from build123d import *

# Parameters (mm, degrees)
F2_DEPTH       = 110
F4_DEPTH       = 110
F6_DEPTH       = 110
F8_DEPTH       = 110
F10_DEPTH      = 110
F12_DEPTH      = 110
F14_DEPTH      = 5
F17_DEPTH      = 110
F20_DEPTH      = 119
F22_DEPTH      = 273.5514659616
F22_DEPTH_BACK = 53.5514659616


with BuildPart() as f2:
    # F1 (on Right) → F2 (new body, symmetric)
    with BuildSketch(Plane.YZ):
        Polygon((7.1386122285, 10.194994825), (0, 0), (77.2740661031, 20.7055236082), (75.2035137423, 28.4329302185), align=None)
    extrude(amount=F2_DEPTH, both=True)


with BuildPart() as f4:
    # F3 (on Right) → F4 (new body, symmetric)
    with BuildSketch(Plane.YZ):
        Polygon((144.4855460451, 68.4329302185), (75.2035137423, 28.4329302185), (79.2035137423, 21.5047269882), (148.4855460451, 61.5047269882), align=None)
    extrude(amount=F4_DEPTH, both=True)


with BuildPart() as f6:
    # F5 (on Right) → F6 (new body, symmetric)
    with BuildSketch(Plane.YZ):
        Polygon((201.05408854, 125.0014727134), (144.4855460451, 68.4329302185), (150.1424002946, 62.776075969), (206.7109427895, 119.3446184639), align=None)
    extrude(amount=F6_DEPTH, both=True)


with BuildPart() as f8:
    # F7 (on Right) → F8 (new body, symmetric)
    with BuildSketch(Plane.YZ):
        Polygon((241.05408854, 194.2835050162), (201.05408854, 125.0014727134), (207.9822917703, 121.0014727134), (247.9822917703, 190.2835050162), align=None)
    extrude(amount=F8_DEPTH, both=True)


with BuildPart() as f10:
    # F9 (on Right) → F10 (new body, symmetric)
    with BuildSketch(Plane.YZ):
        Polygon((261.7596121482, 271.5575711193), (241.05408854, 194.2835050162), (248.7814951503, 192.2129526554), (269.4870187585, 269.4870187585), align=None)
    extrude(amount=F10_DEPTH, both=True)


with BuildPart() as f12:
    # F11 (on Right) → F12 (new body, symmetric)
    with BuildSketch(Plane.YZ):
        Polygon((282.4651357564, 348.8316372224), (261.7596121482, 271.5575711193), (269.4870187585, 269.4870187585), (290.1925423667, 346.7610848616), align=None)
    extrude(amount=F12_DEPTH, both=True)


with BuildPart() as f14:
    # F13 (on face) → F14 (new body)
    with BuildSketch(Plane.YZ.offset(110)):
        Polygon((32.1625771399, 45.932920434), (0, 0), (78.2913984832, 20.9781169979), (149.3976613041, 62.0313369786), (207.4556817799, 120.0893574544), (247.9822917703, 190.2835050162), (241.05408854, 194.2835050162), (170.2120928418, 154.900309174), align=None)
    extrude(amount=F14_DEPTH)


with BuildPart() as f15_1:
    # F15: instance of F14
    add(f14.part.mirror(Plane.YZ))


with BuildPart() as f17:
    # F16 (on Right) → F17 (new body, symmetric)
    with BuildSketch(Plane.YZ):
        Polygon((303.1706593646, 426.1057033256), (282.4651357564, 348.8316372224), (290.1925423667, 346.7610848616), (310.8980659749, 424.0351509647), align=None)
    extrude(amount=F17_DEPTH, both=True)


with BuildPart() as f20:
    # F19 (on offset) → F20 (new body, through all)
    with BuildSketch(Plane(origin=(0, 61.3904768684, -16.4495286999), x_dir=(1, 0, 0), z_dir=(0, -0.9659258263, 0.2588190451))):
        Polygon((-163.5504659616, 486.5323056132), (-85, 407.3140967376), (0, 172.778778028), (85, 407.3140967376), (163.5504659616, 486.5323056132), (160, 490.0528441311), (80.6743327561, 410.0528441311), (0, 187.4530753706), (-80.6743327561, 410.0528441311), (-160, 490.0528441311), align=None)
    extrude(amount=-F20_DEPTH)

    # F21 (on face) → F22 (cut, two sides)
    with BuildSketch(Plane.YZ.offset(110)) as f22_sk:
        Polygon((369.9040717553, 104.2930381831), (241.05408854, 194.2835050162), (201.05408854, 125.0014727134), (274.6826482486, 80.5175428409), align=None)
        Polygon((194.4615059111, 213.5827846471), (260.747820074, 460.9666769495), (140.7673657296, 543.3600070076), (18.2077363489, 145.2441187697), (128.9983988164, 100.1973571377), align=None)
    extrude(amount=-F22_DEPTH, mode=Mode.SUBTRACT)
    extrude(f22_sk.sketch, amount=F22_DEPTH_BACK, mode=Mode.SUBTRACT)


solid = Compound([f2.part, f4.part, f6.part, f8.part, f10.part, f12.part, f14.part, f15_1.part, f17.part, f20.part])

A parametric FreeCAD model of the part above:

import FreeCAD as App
import Part
import Sketcher
from FreeCAD import Vector
Q = App.Units.Quantity

doc = App.newDocument("Part")
params = doc.addObject("Spreadsheet::Sheet", "Params")
for row, (alias, value) in enumerate([
    ("sketch1_length", "80 mm"),
    ("sketch1_length2", "8 mm"),
    ("pad1_length", "220 mm"),
    ("sketch2_length", "80 mm"),
    ("sketch2_length2", "8 mm"),
    ("pad2_length", "220 mm"),
    ("sketch3_length", "80 mm"),
    ("sketch3_length2", "8 mm"),
    ("pad3_length", "220 mm"),
    ("sketch4_length", "80 mm"),
    ("sketch4_length2", "8 mm"),
    ("pad4_length", "220 mm"),
    ("sketch5_length", "80 mm"),
    ("sketch5_length2", "8 mm"),
    ("pad5_length", "220 mm"),
    ("sketch6_length", "80 mm"),
    ("sketch6_length2", "8 mm"),
    ("pad6_length", "220 mm"),
    ("sketch7_length", "8 mm"),
    ("pad7_length", "5 mm"),
    ("sketch8_length", "80 mm"),
    ("sketch8_length2", "8 mm"),
    ("pad8_length", "220 mm"),
    ("sketch9_length", "5 mm"),
    ("pad9_length", "119 mm"),
    ("sketch10_length", "80 mm"),
], start=1):
    params.set(f"A{row}", alias)
    params.set(f"B{row}", "=" + value)
    params.setAlias(f"B{row}", alias)

body = doc.addObject("PartDesign::Body", "Body")

# Sketch on YZ plane
sketch1 = body.newObject("Sketcher::SketchObject", "Sketch")
sketch1.AttachmentSupport = (doc.getObject("YZ_Plane"), [""])
sketch1.MapMode = "FlatFace"
sketch1.addGeometry([
    Part.LineSegment(Vector(7, 10, 0), Vector(0, 0, 0)),
    Part.LineSegment(Vector(0, 0, 0), Vector(77, 21, 0)),
    Part.LineSegment(Vector(77, 21, 0), Vector(75, 28, 0)),
    Part.LineSegment(Vector(75, 28, 0), Vector(7, 10, 0)),
], False)
sketch1.addConstraint([
    Sketcher.Constraint("Coincident", 0, 2, 1, 1),
    Sketcher.Constraint("Coincident", 1, 2, 2, 1),
    Sketcher.Constraint("Coincident", 2, 2, 3, 1),
    Sketcher.Constraint("Coincident", 3, 2, 0, 1),
    Sketcher.Constraint("Coincident", 0, 2, -1, 1),
    Sketcher.Constraint("Perpendicular", 1, 2),
    Sketcher.Constraint("Perpendicular", 2, 3),
    Sketcher.Constraint("Angle", 0, Q("-125 deg")),
    Sketcher.Constraint("Angle", 1, Q("15 deg")),
    Sketcher.Constraint("Distance", 1, 80.0),
    Sketcher.Constraint("Distance", 2, 8.0),
])
sketch1.setExpression("Constraints[9]", "Params.sketch1_length")
sketch1.setExpression("Constraints[10]", "Params.sketch1_length2")
pad1 = body.newObject("PartDesign::Pad", "Pad")
pad1.Profile = sketch1
pad1.setExpression("Length", "Params.pad1_length")
pad1.Midplane = True
body2 = doc.addObject("PartDesign::Body", "Body001")

# Sketch on YZ plane
sketch2 = body2.newObject("Sketcher::SketchObject", "Sketch001")
sketch2.AttachmentSupport = (doc.getObject("YZ_Plane001"), [""])
sketch2.MapMode = "FlatFace"
sketch2.addGeometry([
    Part.LineSegment(Vector(144, 68, 0), Vector(75, 28, 0)),
    Part.LineSegment(Vector(75, 28, 0), Vector(79, 22, 0)),
    Part.LineSegment(Vector(79, 22, 0), Vector(148, 62, 0)),
    Part.LineSegment(Vector(148, 62, 0), Vector(144, 68, 0)),
], False)
sketch2.addConstraint([
    Sketcher.Constraint("Coincident", 0, 2, 1, 1),
    Sketcher.Constraint("Coincident", 1, 2, 2, 1),
    Sketcher.Constraint("Coincident", 2, 2, 3, 1),
    Sketcher.Constraint("Coincident", 3, 2, 0, 1),
    Sketcher.Constraint("Perpendicular", 0, 1),
    Sketcher.Constraint("Perpendicular", 1, 2),
    Sketcher.Constraint("Perpendicular", 2, 3),
    Sketcher.Constraint("Angle", 0, Q("-150 deg")),
    Sketcher.Constraint("Distance", 0, 80.0),
    Sketcher.Constraint("Distance", 1, 8.0),
    Sketcher.Constraint("DistanceY", -1, 1, 0, 2, 28.43293),
    Sketcher.Constraint("DistanceX", -1, 1, 0, 2, 75.203514),
])
sketch2.setExpression("Constraints[8]", "Params.sketch2_length")
sketch2.setExpression("Constraints[9]", "Params.sketch2_length2")
pad2 = body2.newObject("PartDesign::Pad", "Pad001")
pad2.Profile = sketch2
pad2.setExpression("Length", "Params.pad2_length")
pad2.Midplane = True
body3 = doc.addObject("PartDesign::Body", "Body002")

# Sketch on YZ plane
sketch3 = body3.newObject("Sketcher::SketchObject", "Sketch002")
sketch3.AttachmentSupport = (doc.getObject("YZ_Plane002"), [""])
sketch3.MapMode = "FlatFace"
sketch3.addGeometry([
    Part.LineSegment(Vector(201, 125, 0), Vector(144, 68, 0)),
    Part.LineSegment(Vector(144, 68, 0), Vector(150, 63, 0)),
    Part.LineSegment(Vector(150, 63, 0), Vector(207, 119, 0)),
    Part.LineSegment(Vector(207, 119, 0), Vector(201, 125, 0)),
], False)
sketch3.addConstraint([
    Sketcher.Constraint("Coincident", 0, 2, 1, 1),
    Sketcher.Constraint("Coincident", 1, 2, 2, 1),
    Sketcher.Constraint("Coincident", 2, 2, 3, 1),
    Sketcher.Constraint("Coincident", 3, 2, 0, 1),
    Sketcher.Constraint("Perpendicular", 0, 1),
    Sketcher.Constraint("Perpendicular", 1, 2),
    Sketcher.Constraint("Perpendicular", 2, 3),
    Sketcher.Constraint("Angle", 0, Q("-135 deg")),
    Sketcher.Constraint("Distance", 0, 80.0),
    Sketcher.Constraint("Distance", 1, 8.0),
    Sketcher.Constraint("DistanceX", -1, 1, 1, 2, 150.1424),
    Sketcher.Constraint("DistanceY", -1, 1, 0, 2, 68.43293),
])
sketch3.setExpression("Constraints[8]", "Params.sketch3_length")
sketch3.setExpression("Constraints[9]", "Params.sketch3_length2")
pad3 = body3.newObject("PartDesign::Pad", "Pad002")
pad3.Profile = sketch3
pad3.setExpression("Length", "Params.pad3_length")
pad3.Midplane = True
body4 = doc.addObject("PartDesign::Body", "Body003")

# Sketch on YZ plane
sketch4 = body4.newObject("Sketcher::SketchObject", "Sketch003")
sketch4.AttachmentSupport = (doc.getObject("YZ_Plane003"), [""])
sketch4.MapMode = "FlatFace"
sketch4.addGeometry([
    Part.LineSegment(Vector(241, 194, 0), Vector(201, 125, 0)),
    Part.LineSegment(Vector(201, 125, 0), Vector(208, 121, 0)),
    Part.LineSegment(Vector(208, 121, 0), Vector(248, 190, 0)),
    Part.LineSegment(Vector(248, 190, 0), Vector(241, 194, 0)),
], False)
sketch4.addConstraint([
    Sketcher.Constraint("Coincident", 0, 2, 1, 1),
    Sketcher.Constraint("Coincident", 1, 2, 2, 1),
    Sketcher.Constraint("Coincident", 2, 2, 3, 1),
    Sketcher.Constraint("Coincident", 3, 2, 0, 1),
    Sketcher.Constraint("Perpendicular", 0, 1),
    Sketcher.Constraint("Perpendicular", 1, 2),
    Sketcher.Constraint("Perpendicular", 2, 3),
    Sketcher.Constraint("Angle", 0, Q("-120 deg")),
    Sketcher.Constraint("Distance", 0, 80.0),
    Sketcher.Constraint("Distance", 1, 8.0),
    Sketcher.Constraint("DistanceX", -1, 1, 0, 2, 201.054089),
    Sketcher.Constraint("DistanceY", -1, 1, 0, 2, 125.001473),
])
sketch4.setExpression("Constraints[8]", "Params.sketch4_length")
sketch4.setExpression("Constraints[9]", "Params.sketch4_length2")
pad4 = body4.newObject("PartDesign::Pad", "Pad003")
pad4.Profile = sketch4
pad4.setExpression("Length", "Params.pad4_length")
pad4.Midplane = True
body5 = doc.addObject("PartDesign::Body", "Body004")

# Sketch on YZ plane
sketch5 = body5.newObject("Sketcher::SketchObject", "Sketch004")
sketch5.AttachmentSupport = (doc.getObject("YZ_Plane004"), [""])
sketch5.MapMode = "FlatFace"
sketch5.addGeometry([
    Part.LineSegment(Vector(262, 272, 0), Vector(241, 194, 0)),
    Part.LineSegment(Vector(241, 194, 0), Vector(249, 192, 0)),
    Part.LineSegment(Vector(249, 192, 0), Vector(269, 269, 0)),
    Part.LineSegment(Vector(269, 269, 0), Vector(262, 272, 0)),
], False)
sketch5.addConstraint([
    Sketcher.Constraint("Coincident", 0, 2, 1, 1),
    Sketcher.Constraint("Coincident", 1, 2, 2, 1),
    Sketcher.Constraint("Coincident", 2, 2, 3, 1),
    Sketcher.Constraint("Coincident", 3, 2, 0, 1),
    Sketcher.Constraint("Perpendicular", 0, 1),
    Sketcher.Constraint("Perpendicular", 1, 2),
    Sketcher.Constraint("Perpendicular", 2, 3),
    Sketcher.Constraint("Angle", 0, Q("-105 deg")),
    Sketcher.Constraint("Distance", 0, 80.0),
    Sketcher.Constraint("Distance", 1, 8.0),
    Sketcher.Constraint("DistanceX", -1, 1, 0, 2, 241.054089),
    Sketcher.Constraint("DistanceY", -1, 1, 2, 2, 269.487019),
])
sketch5.setExpression("Constraints[8]", "Params.sketch5_length")
sketch5.setExpression("Constraints[9]", "Params.sketch5_length2")
pad5 = body5.newObject("PartDesign::Pad", "Pad004")
pad5.Profile = sketch5
pad5.setExpression("Length", "Params.pad5_length")
pad5.Midplane = True
body6 = doc.addObject("PartDesign::Body", "Body005")

# Sketch on YZ plane
sketch6 = body6.newObject("Sketcher::SketchObject", "Sketch005")
sketch6.AttachmentSupport = (doc.getObject("YZ_Plane005"), [""])
sketch6.MapMode = "FlatFace"
sketch6.addGeometry([
    Part.LineSegment(Vector(282, 349, 0), Vector(262, 272, 0)),
    Part.LineSegment(Vector(262, 272, 0), Vector(269, 269, 0)),
    Part.LineSegment(Vector(269, 269, 0), Vector(290, 347, 0)),
    Part.LineSegment(Vector(290, 347, 0), Vector(282, 349, 0)),
], False)
sketch6.addConstraint([
    Sketcher.Constraint("Coincident", 0, 2, 1, 1),
    Sketcher.Constraint("Coincident", 1, 2, 2, 1),
    Sketcher.Constraint("Coincident", 2, 2, 3, 1),
    Sketcher.Constraint("Coincident", 3, 2, 0, 1),
    Sketcher.Constraint("Perpendicular", 0, 1),
    Sketcher.Constraint("Perpendicular", 1, 2),
    Sketcher.Constraint("Perpendicular", 2, 3),
    Sketcher.Constraint("Angle", 0, Q("-105 deg")),
    Sketcher.Constraint("Distance", 0, 80.0),
    Sketcher.Constraint("Distance", 1, 8.0),
    Sketcher.Constraint("DistanceY", -1, 1, 0, 2, 271.557571),
    Sketcher.Constraint("DistanceX", -1, 1, 1, 2, 269.487019),
])
sketch6.setExpression("Constraints[8]", "Params.sketch6_length")
sketch6.setExpression("Constraints[9]", "Params.sketch6_length2")
pad6 = body6.newObject("PartDesign::Pad", "Pad005")
pad6.Profile = sketch6
pad6.setExpression("Length", "Params.pad6_length")
pad6.Midplane = True
body7 = doc.addObject("PartDesign::Body", "Body006")

# Sketch on YZ plane
sketch7 = body7.newObject("Sketcher::SketchObject", "Sketch006")
sketch7.AttachmentSupport = (doc.getObject("YZ_Plane006"), [""])
sketch7.MapMode = "FlatFace"
sketch7.AttachmentOffset = App.Placement(Vector(0, 0, 110), App.Rotation())
sketch7.addGeometry([
    Part.LineSegment(Vector(32, 46, 0), Vector(0, 0, 0)),  # 0
    Part.LineSegment(Vector(0, 0, 0), Vector(78, 21, 0)),  # 1
    Part.LineSegment(Vector(78, 21, 0), Vector(149, 62, 0)),  # 2
    Part.LineSegment(Vector(149, 62, 0), Vector(207, 120, 0)),  # 3
    Part.LineSegment(Vector(207, 120, 0), Vector(248, 190, 0)),  # 4
    Part.LineSegment(Vector(248, 190, 0), Vector(241, 194, 0)),  # 5
    Part.LineSegment(Vector(241, 194, 0), Vector(170, 155, 0)),  # 6
    Part.LineSegment(Vector(170, 155, 0), Vector(32, 46, 0)),  # 7
], False)
sketch7.addConstraint([
    Sketcher.Constraint("Coincident", 0, 2, 1, 1),
    Sketcher.Constraint("Coincident", 1, 2, 2, 1),
    Sketcher.Constraint("Coincident", 2, 2, 3, 1),
    Sketcher.Constraint("Coincident", 3, 2, 4, 1),
    Sketcher.Constraint("Coincident", 4, 2, 5, 1),
    Sketcher.Constraint("Coincident", 5, 2, 6, 1),
    Sketcher.Constraint("Coincident", 6, 2, 7, 1),
    Sketcher.Constraint("Coincident", 7, 2, 0, 1),
    Sketcher.Constraint("Coincident", 0, 2, -1, 1),
    Sketcher.Constraint("Perpendicular", 4, 5),
    Sketcher.Constraint("Equal", 2, 3),
    Sketcher.Constraint("Equal", 1, 4),
    Sketcher.Constraint("Equal", 4, 6),
    Sketcher.Constraint("Angle", 0, Q("-125 deg")),
    Sketcher.Constraint("Angle", 1, Q("15 deg")),
    Sketcher.Constraint("Angle", 2, Q("30 deg")),
    Sketcher.Constraint("Angle", 3, Q("45 deg")),
    Sketcher.Constraint("Angle", 4, Q("60 deg")),
    Sketcher.Constraint("Distance", 5, 8.0),
    Sketcher.Constraint("DistanceX", -1, 1, 1, 2, 78.291398),
    Sketcher.Constraint("DistanceX", 6, 2, 4, 2, 77.770199),
    Sketcher.Constraint("Distance", 2, 82.10644),
    Sketcher.Constraint("DistanceY", -1, 1, 7, 2, 45.93292),
])
sketch7.setExpression("Constraints[18]", "Params.sketch7_length")
pad7 = body7.newObject("PartDesign::Pad", "Pad006")
pad7.Profile = sketch7
pad7.setExpression("Length", "Params.pad7_length")
body8 = doc.addObject("PartDesign::Body", "Body007")
doc.recompute()

mirroring = doc.addObject("Part::Mirroring", "Mirroring")
mirroring.Source = body7
mirroring.Base = Vector(0, 0, 0)
mirroring.Normal = Vector(1, 0, 0)
body8.BaseFeature = mirroring
doc.recompute()
body9 = doc.addObject("PartDesign::Body", "Body008")

# Sketch on YZ plane
sketch8 = body9.newObject("Sketcher::SketchObject", "Sketch007")
sketch8.AttachmentSupport = (doc.getObject("YZ_Plane008"), [""])
sketch8.MapMode = "FlatFace"
sketch8.addGeometry([
    Part.LineSegment(Vector(303, 426, 0), Vector(282, 349, 0)),
    Part.LineSegment(Vector(282, 349, 0), Vector(290, 347, 0)),
    Part.LineSegment(Vector(290, 347, 0), Vector(311, 424, 0)),
    Part.LineSegment(Vector(311, 424, 0), Vector(303, 426, 0)),
], False)
sketch8.addConstraint([
    Sketcher.Constraint("Coincident", 0, 2, 1, 1),
    Sketcher.Constraint("Coincident", 1, 2, 2, 1),
    Sketcher.Constraint("Coincident", 2, 2, 3, 1),
    Sketcher.Constraint("Coincident", 3, 2, 0, 1),
    Sketcher.Constraint("Perpendicular", 0, 1),
    Sketcher.Constraint("Perpendicular", 1, 2),
    Sketcher.Constraint("Perpendicular", 2, 3),
    Sketcher.Constraint("Angle", 0, Q("-105 deg")),
    Sketcher.Constraint("Distance", 0, 80.0),
    Sketcher.Constraint("Distance", 1, 8.0),
    Sketcher.Constraint("DistanceY", -1, 1, 2, 2, 424.035151),
    Sketcher.Constraint("DistanceX", -1, 1, 3, 2, 303.170659),
])
sketch8.setExpression("Constraints[8]", "Params.sketch8_length")
sketch8.setExpression("Constraints[9]", "Params.sketch8_length2")
pad8 = body9.newObject("PartDesign::Pad", "Pad007")
pad8.Profile = sketch8
pad8.setExpression("Length", "Params.pad8_length")
pad8.Midplane = True
body10 = doc.addObject("PartDesign::Body", "Body009")

# Sketch on an angled plane
sketch9 = body10.newObject("Sketcher::SketchObject", "Sketch008")
sketch9.Placement = App.Placement(Vector(0, 61.390477, -16.449529), App.Rotation(Vector(1, 0, 0), Vector(0, 0.258819045, 0.965925826), Vector(0, -0.965925826, 0.258819045), "ZXY"))
sketch9.addGeometry([
    Part.LineSegment(Vector(-163.6, 486.5, 0), Vector(-85, 407.3, 0)),  # 0
    Part.LineSegment(Vector(-85, 407.3, 0), Vector(0, 172.8, 0)),  # 1
    Part.LineSegment(Vector(0, 172.8, 0), Vector(85, 407.3, 0)),  # 2
    Part.LineSegment(Vector(85, 407.3, 0), Vector(163.6, 486.5, 0)),  # 3
    Part.LineSegment(Vector(163.6, 486.5, 0), Vector(160, 490.1, 0)),  # 4
    Part.LineSegment(Vector(160, 490.1, 0), Vector(80.7, 410.1, 0)),  # 5
    Part.LineSegment(Vector(80.7, 410.1, 0), Vector(0, 187.5, 0)),  # 6
    Part.LineSegment(Vector(0, 187.5, 0), Vector(-80.7, 410.1, 0)),  # 7
    Part.LineSegment(Vector(-80.7, 410.1, 0), Vector(-160, 490.1, 0)),  # 8
    Part.LineSegment(Vector(-160, 490.1, 0), Vector(-163.6, 486.5, 0)),  # 9
], False)
sketch9.addConstraint([
    Sketcher.Constraint("Coincident", 0, 2, 1, 1),
    Sketcher.Constraint("Coincident", 1, 2, 2, 1),
    Sketcher.Constraint("Coincident", 2, 2, 3, 1),
    Sketcher.Constraint("Coincident", 3, 2, 4, 1),
    Sketcher.Constraint("Coincident", 4, 2, 5, 1),
    Sketcher.Constraint("Coincident", 5, 2, 6, 1),
    Sketcher.Constraint("Coincident", 6, 2, 7, 1),
    Sketcher.Constraint("Coincident", 7, 2, 8, 1),
    Sketcher.Constraint("Coincident", 8, 2, 9, 1),
    Sketcher.Constraint("Coincident", 9, 2, 0, 1),
    Sketcher.Constraint("Symmetric", 0, 2, 2, 2, -2),
    Sketcher.Constraint("Symmetric", 5, 2, 7, 2, -2),
    Sketcher.Constraint("Symmetric", 4, 2, 8, 2, -2),
    Sketcher.Constraint("Symmetric", 3, 2, 9, 2, -2),
    Sketcher.Constraint("PointOnObject", 1, 2, -2),
    Sketcher.Constraint("PointOnObject", 6, 2, -2),
    Sketcher.Constraint("Perpendicular", 3, 4),
    Sketcher.Constraint("Perpendicular", 4, 5),
    Sketcher.Constraint("Parallel", 2, 6),
    Sketcher.Constraint("Distance", 4, 5.0),
    Sketcher.Constraint("DistanceX", 0, 2, -1, 1, 85.0),
    Sketcher.Constraint("DistanceX", -1, 1, 4, 2, 160.0),
    Sketcher.Constraint("DistanceY", 5, 2, 4, 2, 80.0),
    Sketcher.Constraint("Distance", 0, 111.560299),
    Sketcher.Constraint("Distance", 6, 236.767829),
    Sketcher.Constraint("DistanceY", -1, 1, 0, 2, 407.314096),
])
sketch9.setExpression("Constraints[19]", "Params.sketch9_length")
pad9 = body10.newObject("PartDesign::Pad", "Pad008")
pad9.Profile = sketch9
pad9.setExpression("Length", "Params.pad9_length")
pad9.Reversed = True

# Sketch on YZ plane
sketch10 = body10.newObject("Sketcher::SketchObject", "Sketch009")
sketch10.AttachmentSupport = (doc.getObject("YZ_Plane009"), [""])
sketch10.MapMode = "FlatFace"
sketch10.AttachmentOffset = App.Placement(Vector(0, 0, 110), App.Rotation())
sketch10.addGeometry([
    Part.LineSegment(Vector(370, 104, 0), Vector(241, 194, 0)),  # 0
    Part.LineSegment(Vector(241, 194, 0), Vector(201, 125, 0)),  # 1
    Part.LineSegment(Vector(201, 125, 0), Vector(275, 81, 0)),  # 2
    Part.LineSegment(Vector(275, 81, 0), Vector(370, 104, 0)),  # 3
    Part.LineSegment(Vector(194, 214, 0), Vector(261, 461, 0)),  # 4
    Part.LineSegment(Vector(261, 461, 0), Vector(141, 543, 0)),  # 5
    Part.LineSegment(Vector(141, 543, 0), Vector(18, 145, 0)),  # 6
    Part.LineSegment(Vector(18, 145, 0), Vector(129, 100, 0)),  # 7
    Part.LineSegment(Vector(129, 100, 0), Vector(194, 214, 0)),  # 8
], False)
sketch10.addConstraint([
    Sketcher.Constraint("Coincident", 0, 2, 1, 1),
    Sketcher.Constraint("Coincident", 1, 2, 2, 1),
    Sketcher.Constraint("Coincident", 2, 2, 3, 1),
    Sketcher.Constraint("Coincident", 3, 2, 0, 1),
    Sketcher.Constraint("Coincident", 4, 2, 5, 1),
    Sketcher.Constraint("Coincident", 5, 2, 6, 1),
    Sketcher.Constraint("Coincident", 6, 2, 7, 1),
    Sketcher.Constraint("Coincident", 7, 2, 8, 1),
    Sketcher.Constraint("Coincident", 8, 2, 4, 1),
    Sketcher.Constraint("Parallel", 1, 8),
    Sketcher.Constraint("Angle", 1, Q("-120 deg")),
    Sketcher.Constraint("Angle", 4, Q("75 deg")),
    Sketcher.Constraint("Distance", 1, 80.0),
    Sketcher.Constraint("DistanceX", -1, 1, 7, 2, 128.998399),
    Sketcher.Constraint("DistanceY", 0, 2, 5, 2, 349.076502),
    Sketcher.Constraint("Distance", 3, 98.144759),
    Sketcher.Constraint("Distance", 4, 256.110651),
    Sketcher.Constraint("Distance", 5, 145.547141),
    Sketcher.Constraint("Distance", 7, 119.598418),
    Sketcher.Constraint("DistanceX", -1, 1, 0, 2, 241.054089),
    Sketcher.Constraint("DistanceX", -1, 1, 2, 2, 274.682648),
    Sketcher.Constraint("DistanceX", -1, 1, 3, 2, 369.904072),
    Sketcher.Constraint("DistanceY", -1, 1, 3, 2, 104.293038),
    Sketcher.Constraint("DistanceX", -1, 1, 4, 2, 260.74782),
    Sketcher.Constraint("DistanceY", -1, 1, 6, 2, 145.244119),
    Sketcher.Constraint("DistanceY", 2, 2, 1, 2, 44.48393),
    Sketcher.Constraint("DistanceY", 0, 2, 4, 2, 266.683172),
])
sketch10.setExpression("Constraints[12]", "Params.sketch10_length")
pocket1 = body10.newObject("PartDesign::Pocket", "Pocket")
pocket1.Profile = sketch10
pocket1.Type = "ThroughAll"
pocket1.Midplane = True
mirroring.Visibility = False

doc.recompute()
